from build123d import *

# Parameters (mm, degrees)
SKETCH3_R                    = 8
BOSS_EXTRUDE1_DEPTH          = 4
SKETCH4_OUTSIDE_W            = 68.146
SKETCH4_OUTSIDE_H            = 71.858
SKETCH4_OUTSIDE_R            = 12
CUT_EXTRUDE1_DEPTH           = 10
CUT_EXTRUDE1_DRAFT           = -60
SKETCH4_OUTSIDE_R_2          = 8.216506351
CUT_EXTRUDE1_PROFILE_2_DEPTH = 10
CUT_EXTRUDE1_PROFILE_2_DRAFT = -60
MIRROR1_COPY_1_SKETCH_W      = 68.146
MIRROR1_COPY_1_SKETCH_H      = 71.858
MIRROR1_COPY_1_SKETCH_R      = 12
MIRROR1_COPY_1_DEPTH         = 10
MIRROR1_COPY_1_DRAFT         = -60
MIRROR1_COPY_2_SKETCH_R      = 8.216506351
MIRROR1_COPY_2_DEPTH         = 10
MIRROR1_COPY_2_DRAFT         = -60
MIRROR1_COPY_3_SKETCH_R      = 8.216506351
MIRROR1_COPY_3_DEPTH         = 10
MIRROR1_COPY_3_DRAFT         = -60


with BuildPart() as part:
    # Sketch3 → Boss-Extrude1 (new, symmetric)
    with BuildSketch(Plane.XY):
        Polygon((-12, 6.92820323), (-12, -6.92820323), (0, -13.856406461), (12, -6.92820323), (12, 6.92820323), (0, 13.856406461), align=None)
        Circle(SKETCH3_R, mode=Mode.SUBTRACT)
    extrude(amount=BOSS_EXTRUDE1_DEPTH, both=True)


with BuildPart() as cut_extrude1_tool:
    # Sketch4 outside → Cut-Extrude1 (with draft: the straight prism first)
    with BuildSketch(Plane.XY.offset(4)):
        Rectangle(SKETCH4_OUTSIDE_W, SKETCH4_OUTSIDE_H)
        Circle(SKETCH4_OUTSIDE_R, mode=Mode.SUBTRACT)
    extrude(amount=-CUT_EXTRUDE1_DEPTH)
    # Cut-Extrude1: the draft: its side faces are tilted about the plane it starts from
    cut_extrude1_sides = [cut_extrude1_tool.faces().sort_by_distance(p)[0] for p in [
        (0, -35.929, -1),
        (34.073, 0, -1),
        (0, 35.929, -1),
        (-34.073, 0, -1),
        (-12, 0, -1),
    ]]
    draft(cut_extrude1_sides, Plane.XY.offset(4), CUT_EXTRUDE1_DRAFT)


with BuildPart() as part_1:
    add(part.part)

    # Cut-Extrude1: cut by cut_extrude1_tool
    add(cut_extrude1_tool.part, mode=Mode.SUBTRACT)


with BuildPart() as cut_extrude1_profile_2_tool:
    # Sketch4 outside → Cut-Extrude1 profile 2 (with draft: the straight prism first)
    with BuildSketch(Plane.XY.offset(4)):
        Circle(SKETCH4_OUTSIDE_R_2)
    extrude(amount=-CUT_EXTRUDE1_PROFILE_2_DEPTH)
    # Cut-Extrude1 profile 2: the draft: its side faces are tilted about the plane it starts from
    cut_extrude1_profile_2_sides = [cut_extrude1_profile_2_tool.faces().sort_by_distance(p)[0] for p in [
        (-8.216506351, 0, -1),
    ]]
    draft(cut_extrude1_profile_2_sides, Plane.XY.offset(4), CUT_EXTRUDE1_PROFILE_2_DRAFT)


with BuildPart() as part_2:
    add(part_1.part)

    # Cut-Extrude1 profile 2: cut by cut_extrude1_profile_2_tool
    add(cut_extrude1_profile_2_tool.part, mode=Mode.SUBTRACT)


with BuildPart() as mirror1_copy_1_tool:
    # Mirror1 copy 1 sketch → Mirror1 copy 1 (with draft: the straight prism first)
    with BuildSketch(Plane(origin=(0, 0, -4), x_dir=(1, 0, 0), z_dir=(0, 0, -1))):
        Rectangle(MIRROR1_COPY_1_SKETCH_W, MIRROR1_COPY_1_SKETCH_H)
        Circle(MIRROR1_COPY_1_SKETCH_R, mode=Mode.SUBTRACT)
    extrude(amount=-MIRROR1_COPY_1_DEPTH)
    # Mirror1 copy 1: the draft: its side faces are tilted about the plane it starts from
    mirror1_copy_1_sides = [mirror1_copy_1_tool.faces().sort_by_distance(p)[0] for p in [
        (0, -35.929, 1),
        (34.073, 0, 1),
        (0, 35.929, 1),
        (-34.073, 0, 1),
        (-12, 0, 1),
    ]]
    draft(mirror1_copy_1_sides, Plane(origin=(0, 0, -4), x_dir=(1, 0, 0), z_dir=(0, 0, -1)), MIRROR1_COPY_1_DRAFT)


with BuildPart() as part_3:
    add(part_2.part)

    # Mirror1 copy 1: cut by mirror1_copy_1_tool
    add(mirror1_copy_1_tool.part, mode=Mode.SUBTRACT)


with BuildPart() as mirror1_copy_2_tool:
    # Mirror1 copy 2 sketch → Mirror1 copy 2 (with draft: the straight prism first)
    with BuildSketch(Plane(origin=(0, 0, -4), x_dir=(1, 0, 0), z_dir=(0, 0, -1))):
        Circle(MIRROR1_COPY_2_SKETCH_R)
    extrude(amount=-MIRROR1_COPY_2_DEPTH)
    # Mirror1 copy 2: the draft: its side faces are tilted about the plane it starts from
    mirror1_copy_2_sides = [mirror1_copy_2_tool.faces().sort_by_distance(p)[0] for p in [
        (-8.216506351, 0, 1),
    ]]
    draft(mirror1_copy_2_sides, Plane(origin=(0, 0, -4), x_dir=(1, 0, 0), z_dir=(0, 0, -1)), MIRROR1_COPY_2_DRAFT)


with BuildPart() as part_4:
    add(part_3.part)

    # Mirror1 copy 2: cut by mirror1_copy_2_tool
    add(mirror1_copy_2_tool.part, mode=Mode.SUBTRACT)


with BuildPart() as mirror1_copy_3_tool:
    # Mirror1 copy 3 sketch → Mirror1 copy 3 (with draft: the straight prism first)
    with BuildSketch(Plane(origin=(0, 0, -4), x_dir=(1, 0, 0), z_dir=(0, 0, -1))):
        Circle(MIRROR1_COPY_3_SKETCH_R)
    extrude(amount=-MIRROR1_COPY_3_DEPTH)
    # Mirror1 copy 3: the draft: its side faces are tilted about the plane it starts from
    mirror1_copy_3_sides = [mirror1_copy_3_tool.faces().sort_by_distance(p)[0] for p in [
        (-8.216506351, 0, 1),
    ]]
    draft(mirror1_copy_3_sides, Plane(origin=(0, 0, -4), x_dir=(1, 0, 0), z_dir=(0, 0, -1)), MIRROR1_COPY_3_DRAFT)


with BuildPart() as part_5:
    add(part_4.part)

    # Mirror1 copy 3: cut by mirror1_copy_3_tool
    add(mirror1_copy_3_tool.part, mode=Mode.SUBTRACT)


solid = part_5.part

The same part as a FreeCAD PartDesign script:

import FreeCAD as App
import Part
import Sketcher
from FreeCAD import Vector
Q = App.Units.Quantity


def faces_at(feature, points):
    """Names of the faces that lie closest to the given points."""
    faces = feature.Shape.Faces
    near = lambda p: min(range(len(faces)), key=lambda i: faces[i].distToShape(Part.Vertex(*p))[0])
    return sorted({f"Face{near(p) + 1}" for p in points})


def add_polygon(sketch, points):
    """Adds a closed chain of lines whose ends are joined by coincident constraints."""
    first, n = sketch.GeometryCount, len(points)
    for a, b in zip(points, points[1:] + points[:1]):
        sketch.addGeometry(Part.LineSegment(App.Vector(*a, 0), App.Vector(*b, 0)), False)
    for i in range(n):
        sketch.addConstraint(Sketcher.Constraint("Coincident", first + i, 2, first + (i + 1) % n, 1))

doc = App.newDocument("Part")
body = doc.addObject("PartDesign::Body", "Body")

sketch1 = doc.addObject("Sketcher::SketchObject", "Sketch")
body.addObject(sketch1)
sketch1.AttachmentSupport = (doc.XY_Plane, [""])
sketch1.MapMode = "FlatFace"
add_polygon(sketch1, [(-12, 6.928203), (-12, -6.928203), (0, -13.856406), (12, -6.928203), (12, 6.928203), (0, 13.856406)])
sketch1.addGeometry(Part.Circle(Vector(0, 0, 0), Vector(0, 0, 1), 8), False)
sketch1.addConstraint([
    Sketcher.Constraint("Vertical", 0),
    Sketcher.Constraint("Vertical", 3),
    Sketcher.Constraint("Coincident", 6, 3, -1, 1),
    Sketcher.Constraint("Symmetric", 0, 2, 3, 2, -1, 1),
    Sketcher.Constraint("Symmetric", 1, 2, 4, 2, -1, 1),
    Sketcher.Constraint("PointOnObject", 1, 2, -2),
    Sketcher.Constraint("Parallel", 2, 5),
    Sketcher.Constraint("Horizontal", 0, 2, 2, 2),
    Sketcher.Constraint("Diameter", 6, Q("16 mm")),
    Sketcher.Constraint("Angle", 1, Q("-30 deg")),
    Sketcher.Constraint("DistanceX", 0, 2, -1, 1, Q("12 mm")),
    Sketcher.Constraint("DistanceY", 0, 2, 0, 1, Q("13.856406 mm")),
])
pad1 = doc.addObject("PartDesign::Pad", "Pad")
body.addObject(pad1)
pad1.Profile = sketch1
pad1.Length = 8
pad1.Midplane = True
body2 = doc.addObject("PartDesign::Body", "Body001")

sketch2 = doc.addObject("Sketcher::SketchObject", "Sketch001")
body2.addObject(sketch2)
sketch2.AttachmentSupport = (doc.getObject("XY_Plane001"), [""])
sketch2.MapMode = "FlatFace"
sketch2.AttachmentOffset = App.Placement(Vector(0, 0, 4), App.Rotation())
add_polygon(sketch2, [(-34.073, 35.929), (-34.073, -35.929), (34.073, -35.929), (34.073, 35.929)])
sketch2.addGeometry(Part.Circle(Vector(0, 0, 0), Vector(0, 0, 1), 12), False)
sketch2.addConstraint([
    Sketcher.Constraint("Vertical", 0),
    Sketcher.Constraint("Horizontal", 1),
    Sketcher.Constraint("Vertical", 2),
    Sketcher.Constraint("Horizontal", 3),
    Sketcher.Constraint("Coincident", 4, 3, -1, 1),
    Sketcher.Constraint("Symmetric", 0, 2, 2, 2, -1, 1),
    Sketcher.Constraint("Diameter", 4, Q("24 mm")),
    Sketcher.Constraint("DistanceX", 1, 1, 1, 2, Q("68.146 mm")),
    Sketcher.Constraint("DistanceY", 0, 2, 0, 1, Q("71.858 mm")),
])
pad2 = doc.addObject("PartDesign::Pad", "Pad001")
body2.addObject(pad2)
pad2.Profile = sketch2
pad2.Length = 10
pad2.Reversed = True
doc.recompute()

datumplane = doc.addObject("PartDesign::Plane", "DatumPlane")
body2.addObject(datumplane)
datumplane.AttachmentSupport = (doc.getObject("XY_Plane001"), [""])
datumplane.MapMode = "FlatFace"
datumplane.AttachmentOffset = App.Placement(Vector(0, 0, 4), App.Rotation())
draft = doc.addObject("PartDesign::Draft", "Draft")
body2.addObject(draft)
draft.Base = (pad2, faces_at(pad2, [
    (0, -35.929, -1),
    (34.073, 0, -1),
    (0, 35.929, -1),
    (-34.073, 0, -1),
    (-12, 0, -1),
]))
draft.NeutralPlane = (datumplane, [""])
draft.Angle = 60
draft.Reversed = True
doc.recompute()

boolean = doc.addObject("PartDesign::Boolean", "Boolean")
body.addObject(boolean)
boolean.Type = "Cut"
boolean.addObjects([body2])
body3 = doc.addObject("PartDesign::Body", "Body002")

sketch3 = doc.addObject("Sketcher::SketchObject", "Sketch002")
body3.addObject(sketch3)
sketch3.AttachmentSupport = (doc.getObject("XY_Plane002"), [""])
sketch3.MapMode = "FlatFace"
sketch3.AttachmentOffset = App.Placement(Vector(0, 0, 4), App.Rotation())
sketch3.addGeometry(Part.Circle(Vector(0, 0, 0), Vector(0, 0, 1), 8.216506), False)
sketch3.addConstraint([
    Sketcher.Constraint("Coincident", 0, 3, -1, 1),
    Sketcher.Constraint("Diameter", 0, Q("16.433013 mm")),
])
pad3 = doc.addObject("PartDesign::Pad", "Pad002")
body3.addObject(pad3)
pad3.Profile = sketch3
pad3.Length = 10
pad3.Reversed = True
doc.recompute()

datumplane2 = doc.addObject("PartDesign::Plane", "DatumPlane001")
body3.addObject(datumplane2)
datumplane2.AttachmentSupport = (doc.getObject("XY_Plane002"), [""])
datumplane2.MapMode = "FlatFace"
datumplane2.AttachmentOffset = App.Placement(Vector(0, 0, 4), App.Rotation())
draft2 = doc.addObject("PartDesign::Draft", "Draft001")
body3.addObject(draft2)
draft2.Base = (pad3, faces_at(pad3, [(-8.217, 0, -1)]))
draft2.NeutralPlane = (datumplane2, [""])
draft2.Angle = 60
draft2.Reversed = True
doc.recompute()

boolean2 = doc.addObject("PartDesign::Boolean", "Boolean001")
body.addObject(boolean2)
boolean2.Type = "Cut"
boolean2.addObjects([body3])
body4 = doc.addObject("PartDesign::Body", "Body003")

sketch4 = doc.addObject("Sketcher::SketchObject", "Sketch003")
body4.addObject(sketch4)
sketch4.AttachmentSupport = (doc.getObject("XY_Plane003"), [""])
sketch4.MapMode = "FlatFace"
sketch4.AttachmentOffset = App.Placement(Vector(0, 0, -4), App.Rotation())
add_polygon(sketch4, [(-34.073, -35.929), (-34.073, 35.929), (34.073, 35.929), (34.073, -35.929)])
sketch4.addGeometry(Part.Circle(Vector(0, 0, 0), Vector(0, 0, 1), 12), False)
sketch4.addConstraint([
    Sketcher.Constraint("Vertical", 0),
    Sketcher.Constraint("Horizontal", 1),
    Sketcher.Constraint("Vertical", 2),
    Sketcher.Constraint("Horizontal", 3),
    Sketcher.Constraint("Coincident", 4, 3, -1, 1),
    Sketcher.Constraint("Symmetric", 0, 2, 2, 2, -1, 1),
    Sketcher.Constraint("Diameter", 4, Q("24 mm")),
    Sketcher.Constraint("DistanceX", 1, 1, 1, 2, Q("68.146 mm")),
    Sketcher.Constraint("DistanceY", 0, 1, 0, 2, Q("71.858 mm")),
])
pad4 = doc.addObject("PartDesign::Pad", "Pad003")
body4.addObject(pad4)
pad4.Profile = sketch4
pad4.Length = 10
doc.recompute()

datumplane3 = doc.addObject("PartDesign::Plane", "DatumPlane002")
body4.addObject(datumplane3)
datumplane3.AttachmentSupport = (doc.getObject("XY_Plane003"), [""])
datumplane3.MapMode = "FlatFace"
datumplane3.AttachmentOffset = App.Placement(Vector(0, 0, -4), App.Rotation())
draft3 = doc.addObject("PartDesign::Draft", "Draft002")
body4.addObject(draft3)
draft3.Base = (pad4, faces_at(pad4, [
    (0, -35.929, 1),
    (34.073, 0, 1),
    (0, 35.929, 1),
    (-34.073, 0, 1),
    (-12, 0, 1),
]))
draft3.NeutralPlane = (datumplane3, [""])
draft3.Angle = 60
draft3.Reversed = False
doc.recompute()

boolean3 = doc.addObject("PartDesign::Boolean", "Boolean002")
body.addObject(boolean3)
boolean3.Type = "Cut"
boolean3.addObjects([body4])
body5 = doc.addObject("PartDesign::Body", "Body004")

sketch5 = doc.addObject("Sketcher::SketchObject", "Sketch004")
body5.addObject(sketch5)
sketch5.AttachmentSupport = (doc.getObject("XY_Plane004"), [""])
sketch5.MapMode = "FlatFace"
sketch5.AttachmentOffset = App.Placement(Vector(0, 0, -4), App.Rotation())
sketch5.addGeometry(Part.Circle(Vector(0, 0, 0), Vector(0, 0, 1), 8.216506), False)
sketch5.addConstraint([
    Sketcher.Constraint("Coincident", 0, 3, -1, 1),
    Sketcher.Constraint("Diameter", 0, Q("16.433013 mm")),
])
pad5 = doc.addObject("PartDesign::Pad", "Pad004")
body5.addObject(pad5)
pad5.Profile = sketch5
pad5.Length = 10
doc.recompute()

datumplane4 = doc.addObject("PartDesign::Plane", "DatumPlane003")
body5.addObject(datumplane4)
datumplane4.AttachmentSupport = (doc.getObject("XY_Plane004"), [""])
datumplane4.MapMode = "FlatFace"
datumplane4.AttachmentOffset = App.Placement(Vector(0, 0, -4), App.Rotation())
draft4 = doc.addObject("PartDesign::Draft", "Draft003")
body5.addObject(draft4)
draft4.Base = (pad5, faces_at(pad5, [(-8.217, 0, 1)]))
draft4.NeutralPlane = (datumplane4, [""])
draft4.Angle = 60
draft4.Reversed = False
doc.recompute()

boolean4 = doc.addObject("PartDesign::Boolean", "Boolean003")
body.addObject(boolean4)
boolean4.Type = "Cut"
boolean4.addObjects([body5])
body6 = doc.addObject("PartDesign::Body", "Body005")

sketch6 = doc.addObject("Sketcher::SketchObject", "Sketch005")
body6.addObject(sketch6)
sketch6.AttachmentSupport = (doc.getObject("XY_Plane005"), [""])
sketch6.MapMode = "FlatFace"
sketch6.AttachmentOffset = App.Placement(Vector(0, 0, -4), App.Rotation())
sketch6.addGeometry(Part.Circle(Vector(0, 0, 0), Vector(0, 0, 1), 8.216506), False)
sketch6.addConstraint([
    Sketcher.Constraint("Coincident", 0, 3, -1, 1),
    Sketcher.Constraint("Diameter", 0, Q("16.433013 mm")),
])
pad6 = doc.addObject("PartDesign::Pad", "Pad005")
body6.addObject(pad6)
pad6.Profile = sketch6
pad6.Length = 10
doc.recompute()

datumplane5 = doc.addObject("PartDesign::Plane", "DatumPlane004")
body6.addObject(datumplane5)
datumplane5.AttachmentSupport = (doc.getObject("XY_Plane005"), [""])
datumplane5.MapMode = "FlatFace"
datumplane5.AttachmentOffset = App.Placement(Vector(0, 0, -4), App.Rotation())
draft5 = doc.addObject("PartDesign::Draft", "Draft004")
body6.addObject(draft5)
draft5.Base = (pad6, faces_at(pad6, [(-8.217, 0, 1)]))
draft5.NeutralPlane = (datumplane5, [""])
draft5.Angle = 60
draft5.Reversed = False
doc.recompute()

boolean5 = doc.addObject("PartDesign::Boolean", "Boolean004")
body.addObject(boolean5)
boolean5.Type = "Cut"
boolean5.addObjects([body6])

doc.recompute()
